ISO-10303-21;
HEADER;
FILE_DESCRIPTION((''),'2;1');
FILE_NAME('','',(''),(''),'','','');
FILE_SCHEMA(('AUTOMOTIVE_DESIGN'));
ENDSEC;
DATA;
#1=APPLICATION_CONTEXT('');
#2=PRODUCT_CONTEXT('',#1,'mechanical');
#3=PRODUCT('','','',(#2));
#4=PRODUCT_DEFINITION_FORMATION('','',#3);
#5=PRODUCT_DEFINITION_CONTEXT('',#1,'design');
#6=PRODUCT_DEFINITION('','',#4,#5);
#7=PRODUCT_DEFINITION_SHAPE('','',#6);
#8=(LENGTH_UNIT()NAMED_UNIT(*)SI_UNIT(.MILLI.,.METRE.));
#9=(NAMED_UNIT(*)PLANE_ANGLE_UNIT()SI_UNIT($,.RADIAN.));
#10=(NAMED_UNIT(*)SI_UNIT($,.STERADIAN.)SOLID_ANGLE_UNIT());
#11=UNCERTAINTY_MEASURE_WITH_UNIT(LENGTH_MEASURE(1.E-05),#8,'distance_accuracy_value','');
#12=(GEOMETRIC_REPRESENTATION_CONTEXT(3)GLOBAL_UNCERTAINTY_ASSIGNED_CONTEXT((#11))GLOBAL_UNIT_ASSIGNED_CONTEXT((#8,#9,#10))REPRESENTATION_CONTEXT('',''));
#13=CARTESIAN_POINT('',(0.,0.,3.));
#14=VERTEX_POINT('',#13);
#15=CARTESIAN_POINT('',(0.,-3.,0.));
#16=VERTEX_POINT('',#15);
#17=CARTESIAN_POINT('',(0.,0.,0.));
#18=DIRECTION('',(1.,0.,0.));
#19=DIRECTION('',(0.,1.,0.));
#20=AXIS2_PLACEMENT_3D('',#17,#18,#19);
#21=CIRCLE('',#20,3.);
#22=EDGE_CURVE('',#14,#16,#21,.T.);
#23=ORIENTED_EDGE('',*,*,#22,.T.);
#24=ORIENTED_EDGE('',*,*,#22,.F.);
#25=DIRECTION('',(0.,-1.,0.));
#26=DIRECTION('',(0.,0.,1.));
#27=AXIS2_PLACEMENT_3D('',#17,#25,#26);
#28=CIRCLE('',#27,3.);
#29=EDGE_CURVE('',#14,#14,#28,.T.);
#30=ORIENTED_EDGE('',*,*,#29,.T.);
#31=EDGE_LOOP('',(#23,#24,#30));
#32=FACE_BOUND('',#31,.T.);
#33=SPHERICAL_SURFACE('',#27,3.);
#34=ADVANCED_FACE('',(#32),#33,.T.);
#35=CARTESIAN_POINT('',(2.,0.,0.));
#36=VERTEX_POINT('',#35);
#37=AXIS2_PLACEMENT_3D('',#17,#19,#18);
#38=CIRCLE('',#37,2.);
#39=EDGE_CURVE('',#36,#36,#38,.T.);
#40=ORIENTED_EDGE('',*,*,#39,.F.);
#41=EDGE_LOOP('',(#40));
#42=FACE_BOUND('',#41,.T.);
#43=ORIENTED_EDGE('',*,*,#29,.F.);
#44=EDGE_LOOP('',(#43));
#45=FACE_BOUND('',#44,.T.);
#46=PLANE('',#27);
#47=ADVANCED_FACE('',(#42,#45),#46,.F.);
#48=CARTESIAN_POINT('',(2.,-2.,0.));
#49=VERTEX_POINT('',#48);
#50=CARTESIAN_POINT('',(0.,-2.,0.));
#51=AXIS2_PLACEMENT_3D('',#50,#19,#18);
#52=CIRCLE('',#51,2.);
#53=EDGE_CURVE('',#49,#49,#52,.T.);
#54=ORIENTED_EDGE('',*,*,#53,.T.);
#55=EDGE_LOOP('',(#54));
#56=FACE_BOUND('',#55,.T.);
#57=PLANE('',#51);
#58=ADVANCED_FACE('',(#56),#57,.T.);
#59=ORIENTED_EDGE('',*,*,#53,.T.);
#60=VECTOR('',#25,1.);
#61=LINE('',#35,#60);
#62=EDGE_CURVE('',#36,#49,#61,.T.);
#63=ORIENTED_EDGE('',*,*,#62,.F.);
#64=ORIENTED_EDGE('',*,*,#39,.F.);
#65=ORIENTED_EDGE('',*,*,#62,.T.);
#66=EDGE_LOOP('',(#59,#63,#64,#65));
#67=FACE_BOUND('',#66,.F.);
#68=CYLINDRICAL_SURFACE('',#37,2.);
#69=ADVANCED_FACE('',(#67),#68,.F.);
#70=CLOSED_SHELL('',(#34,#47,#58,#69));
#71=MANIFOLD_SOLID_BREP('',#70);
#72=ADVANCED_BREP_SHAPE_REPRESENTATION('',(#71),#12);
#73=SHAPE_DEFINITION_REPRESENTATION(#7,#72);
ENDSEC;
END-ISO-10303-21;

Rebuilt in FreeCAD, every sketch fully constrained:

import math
import FreeCAD as App
import Part
import Sketcher
from FreeCAD import Vector

doc = App.newDocument("Part")
params = doc.addObject("Spreadsheet::Sheet", "Params")
for row, (alias, value) in enumerate([
    ("sketch1_radius", "3 mm"),
    ("revolution_angle", "360 deg"),
    ("sketch2_diameter", "4 mm"),
    ("pocket1_length", "2 mm"),
], start=1):
    params.set(f"A{row}", alias)
    params.set(f"B{row}", "=" + value)
    params.setAlias(f"B{row}", alias)

body = doc.addObject("PartDesign::Body", "Body")

sketch1 = body.newObject("Sketcher::SketchObject", "Sketch")
sketch1.AttachmentSupport = (doc.getObject("YZ_Plane"), [""])
sketch1.MapMode = "FlatFace"
sketch1.addGeometry([
    Part.LineSegment(Vector(-3, 0, 0), Vector(0, 0, 0)),
    Part.LineSegment(Vector(0, 0, 0), Vector(0, 3, 0)),
    Part.ArcOfCircle(Part.Circle(Vector(0, 0, 0), Vector(0, 0, 1), 3), math.radians(90), math.radians(180)),
], False)
sketch1.addConstraint([
    Sketcher.Constraint("Coincident", 0, 2, 1, 1),
    Sketcher.Constraint("Coincident", 1, 2, 2, 1),
    Sketcher.Constraint("Coincident", 2, 2, 0, 1),
    Sketcher.Constraint("Horizontal", 0),
    Sketcher.Constraint("Vertical", 1),
    Sketcher.Constraint("Coincident", 2, 3, -1, 1),
    Sketcher.Constraint("Coincident", 0, 2, -1, 1),
    Sketcher.Constraint("Radius", 2, 3.0),
])
sketch1.setExpression("Constraints[7]", "Params.sketch1_radius")
revolution = body.newObject("PartDesign::Revolution", "Revolution")
revolution.Profile = sketch1
revolution.ReferenceAxis = (sketch1, ["H_Axis"])
revolution.setExpression("Angle", "Params.revolution_angle")

sketch2 = body.newObject("Sketcher::SketchObject", "Sketch001")
sketch2.AttachmentSupport = (doc.getObject("XZ_Plane"), [""])
sketch2.MapMode = "FlatFace"
sketch2.addGeometry(Part.Circle(Vector(0, 0, 0), Vector(0, 0, 1), 2), False)
sketch2.addConstraint([
    Sketcher.Constraint("Coincident", 0, 3, -1, 1),
    Sketcher.Constraint("Diameter", 0, 4.0),
])
sketch2.setExpression("Constraints[1]", "Params.sketch2_diameter")
pocket1 = body.newObject("PartDesign::Pocket", "Pocket")
pocket1.Profile = sketch2
pocket1.setExpression("Length", "Params.pocket1_length")
pocket1.Reversed = True

doc.recompute()
